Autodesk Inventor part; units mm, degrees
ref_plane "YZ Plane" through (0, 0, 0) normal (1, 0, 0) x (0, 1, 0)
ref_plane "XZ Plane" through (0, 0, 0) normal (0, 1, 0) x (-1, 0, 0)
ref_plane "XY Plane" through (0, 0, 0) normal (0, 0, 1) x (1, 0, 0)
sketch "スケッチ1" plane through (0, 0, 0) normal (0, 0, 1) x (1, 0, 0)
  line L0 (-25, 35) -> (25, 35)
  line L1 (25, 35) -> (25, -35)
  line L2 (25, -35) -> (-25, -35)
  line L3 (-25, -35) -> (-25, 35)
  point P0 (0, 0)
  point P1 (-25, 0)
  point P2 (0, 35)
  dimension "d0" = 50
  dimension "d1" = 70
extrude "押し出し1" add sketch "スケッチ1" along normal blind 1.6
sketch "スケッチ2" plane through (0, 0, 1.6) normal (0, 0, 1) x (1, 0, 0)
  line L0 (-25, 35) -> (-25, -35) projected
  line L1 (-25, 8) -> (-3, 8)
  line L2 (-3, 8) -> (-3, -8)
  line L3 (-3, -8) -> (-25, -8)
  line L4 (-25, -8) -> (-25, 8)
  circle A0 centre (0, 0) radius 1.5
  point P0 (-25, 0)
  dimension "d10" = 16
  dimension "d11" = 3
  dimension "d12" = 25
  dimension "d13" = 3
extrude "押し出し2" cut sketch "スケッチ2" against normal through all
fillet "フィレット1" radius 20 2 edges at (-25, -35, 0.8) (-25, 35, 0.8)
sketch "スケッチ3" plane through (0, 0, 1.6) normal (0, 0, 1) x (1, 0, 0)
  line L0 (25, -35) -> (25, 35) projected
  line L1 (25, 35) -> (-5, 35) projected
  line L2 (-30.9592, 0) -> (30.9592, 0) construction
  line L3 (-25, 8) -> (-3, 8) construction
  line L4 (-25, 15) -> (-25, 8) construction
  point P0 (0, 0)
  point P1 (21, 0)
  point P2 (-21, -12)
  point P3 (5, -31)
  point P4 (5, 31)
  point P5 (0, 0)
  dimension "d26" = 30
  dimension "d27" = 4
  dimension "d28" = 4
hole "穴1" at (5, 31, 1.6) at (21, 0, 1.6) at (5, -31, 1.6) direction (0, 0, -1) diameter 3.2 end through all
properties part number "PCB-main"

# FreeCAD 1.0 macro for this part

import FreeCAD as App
import Part
import Sketcher
from FreeCAD import Vector
Q = App.Units.Quantity


def edges_at(feature, points):
    """Names of the edges that pass closest to the given points."""
    edges = feature.Shape.Edges
    near = lambda p: min(range(len(edges)), key=lambda i: edges[i].distToShape(Part.Vertex(*p))[0])
    return sorted({f"Edge{near(p) + 1}" for p in points})


def add_polygon(sketch, points):
    """Adds a closed chain of lines whose ends are joined by coincident constraints."""
    first, n = sketch.GeometryCount, len(points)
    for a, b in zip(points, points[1:] + points[:1]):
        sketch.addGeometry(Part.LineSegment(App.Vector(*a, 0), App.Vector(*b, 0)), False)
    for i in range(n):
        sketch.addConstraint(Sketcher.Constraint("Coincident", first + i, 2, first + (i + 1) % n, 1))

doc = App.newDocument("Part")
body = doc.addObject("PartDesign::Body", "Body")

# Sketch on XY plane
sketch1 = body.newObject("Sketcher::SketchObject", "Sketch")
sketch1.AttachmentSupport = (doc.getObject("XY_Plane"), [""])
sketch1.MapMode = "FlatFace"
add_polygon(sketch1, [(25, 35), (-25, 35), (-25, -35), (25, -35)])  # lines 0-3
sketch1.addConstraint([
    Sketcher.Constraint("Horizontal", 0),
    Sketcher.Constraint("Vertical", 1),
    Sketcher.Constraint("Horizontal", 2),
    Sketcher.Constraint("Vertical", 3),
    Sketcher.Constraint("Symmetric", 0, 2, 2, 2, -1, 1),
    Sketcher.Constraint("DistanceX", 0, 2, 0, 1, Q("50 mm")),
    Sketcher.Constraint("DistanceY", 1, 2, 1, 1, Q("70 mm")),
])
pad1 = body.newObject("PartDesign::Pad", "Pad")
pad1.Profile = sketch1
pad1.Length = 1.6

# Sketch on XY plane
sketch2 = body.newObject("Sketcher::SketchObject", "Sketch001")
sketch2.AttachmentSupport = (doc.getObject("XY_Plane"), [""])
sketch2.MapMode = "FlatFace"
sketch2.AttachmentOffset = App.Placement(Vector(0, 0, 1.6), App.Rotation())
add_polygon(sketch2, [(-3, 8), (-25, 8), (-25, -8), (-3, -8)])  # lines 0-3
sketch2.addGeometry(Part.Circle(Vector(0, 0, 0), Vector(0, 0, 1), 1.5), False)  # 4
sketch2.addConstraint([
    Sketcher.Constraint("Horizontal", 0),
    Sketcher.Constraint("Vertical", 1),
    Sketcher.Constraint("Horizontal", 2),
    Sketcher.Constraint("Vertical", 3),
    Sketcher.Constraint("Coincident", 4, 3, -1, 1),
    Sketcher.Constraint("Diameter", 4, Q("3 mm")),
    Sketcher.Constraint("DistanceY", 1, 2, 1, 1, Q("16 mm")),
    Sketcher.Constraint("DistanceX", 0, 2, -1, 1, Q("25 mm")),
    Sketcher.Constraint("DistanceX", 2, 2, -1, 1, Q("3 mm")),
    Sketcher.Constraint("DistanceY", -1, 1, 0, 2, Q("8 mm")),
])
pocket1 = body.newObject("PartDesign::Pocket", "Pocket")
pocket1.Profile = sketch2
pocket1.Type = "ThroughAll"
doc.recompute()

fillet = body.newObject("PartDesign::Fillet", "Fillet")
fillet.Base = (pocket1, edges_at(pocket1, [(-25, -35, 0.8), (-25, 35, 0.8)]))
fillet.Radius = 20

# Sketch on XY plane
sketch3 = body.newObject("Sketcher::SketchObject", "Sketch002")
sketch3.AttachmentSupport = (doc.getObject("XY_Plane"), [""])
sketch3.MapMode = "FlatFace"
sketch3.AttachmentOffset = App.Placement(Vector(0, 0, 1.6), App.Rotation())
sketch3.addGeometry([
    Part.Circle(Vector(5, 31, 0), Vector(0, 0, 1), 1.6),
    Part.Circle(Vector(21, 0, 0), Vector(0, 0, 1), 1.6),
    Part.Circle(Vector(5, -31, 0), Vector(0, 0, 1), 1.6),
], False)
sketch3.addConstraint([
    Sketcher.Constraint("Equal", 0, 1),
    Sketcher.Constraint("Equal", 1, 2),
    Sketcher.Constraint("Symmetric", 0, 3, 2, 3, -1),
    Sketcher.Constraint("PointOnObject", 1, 3, -1),
    Sketcher.Constraint("Diameter", 0, Q("3.2 mm")),
    Sketcher.Constraint("DistanceX", -1, 1, 0, 3, Q("5 mm")),
    Sketcher.Constraint("DistanceY", -1, 1, 0, 3, Q("31 mm")),
    Sketcher.Constraint("DistanceX", -1, 1, 1, 3, Q("21 mm")),
])
doc.recompute()
hole = body.newObject("PartDesign::Hole", "Hole")
hole.Profile = sketch3
hole.ThreadType = "None"
hole.Diameter = 3.2
hole.DepthType = "ThroughAll"

doc.recompute()
